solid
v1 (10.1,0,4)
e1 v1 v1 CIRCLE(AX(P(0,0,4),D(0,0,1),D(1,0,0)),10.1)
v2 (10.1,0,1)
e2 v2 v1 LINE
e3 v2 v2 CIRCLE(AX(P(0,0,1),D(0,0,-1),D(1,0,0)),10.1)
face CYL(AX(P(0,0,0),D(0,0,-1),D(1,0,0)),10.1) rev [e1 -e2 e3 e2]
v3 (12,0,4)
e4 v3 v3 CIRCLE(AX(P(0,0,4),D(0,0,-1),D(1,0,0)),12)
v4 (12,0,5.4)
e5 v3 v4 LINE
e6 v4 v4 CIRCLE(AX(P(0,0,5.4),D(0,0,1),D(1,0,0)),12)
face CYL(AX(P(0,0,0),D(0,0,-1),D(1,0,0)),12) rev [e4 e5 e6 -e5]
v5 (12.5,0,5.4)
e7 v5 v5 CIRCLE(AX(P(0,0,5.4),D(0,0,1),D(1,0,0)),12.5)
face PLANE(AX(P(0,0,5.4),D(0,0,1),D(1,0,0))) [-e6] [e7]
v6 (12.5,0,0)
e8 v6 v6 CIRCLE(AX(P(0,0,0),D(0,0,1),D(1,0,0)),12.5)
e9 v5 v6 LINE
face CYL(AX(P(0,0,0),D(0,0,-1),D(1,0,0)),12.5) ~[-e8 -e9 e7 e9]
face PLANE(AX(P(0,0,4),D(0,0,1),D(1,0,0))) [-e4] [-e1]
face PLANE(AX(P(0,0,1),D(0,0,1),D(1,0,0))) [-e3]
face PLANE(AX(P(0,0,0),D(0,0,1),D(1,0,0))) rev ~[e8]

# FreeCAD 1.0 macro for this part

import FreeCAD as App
import Part
import Sketcher

V = App.Vector

doc = App.newDocument("Part")
body = doc.addObject("PartDesign::Body", "Body")

sketch1 = body.newObject("Sketcher::SketchObject", "Sketch")
sketch1.AttachmentSupport = (doc.getObject("XY_Plane"), [""])
sketch1.MapMode = "FlatFace"
sketch1.addGeometry([
    Part.Circle(V(0, 0, 0), V(0, 0, 1), 12),
    Part.Circle(V(0, 0, 0), V(0, 0, 1), 12),
], False)
sketch1.addConstraint([
    Sketcher.Constraint("Coincident", 0, 3, -1, 1),
    Sketcher.Constraint("Coincident", 1, 3, -1, 1),
    Sketcher.Constraint("Diameter", 0, 25.0),
    Sketcher.Constraint("Diameter", 1, 24.0),
])
pad1 = body.newObject("PartDesign::Pad", "Pad")
pad1.Profile = sketch1
pad1.Length = 5.4

sketch2 = body.newObject("Sketcher::SketchObject", "Sketch001")
sketch2.AttachmentSupport = (doc.getObject("XY_Plane"), [""])
sketch2.MapMode = "FlatFace"
sketch2.addGeometry(Part.Circle(V(0, 0, 0), V(0, 0, 1), 12), False)
sketch2.addConstraint([
    Sketcher.Constraint("Coincident", 0, 3, -1, 1),
    Sketcher.Constraint("Diameter", 0, 25.0),
])
pad2 = body.newObject("PartDesign::Pad", "Pad001")
pad2.Profile = sketch2
pad2.Length = 1

sketch3 = body.newObject("Sketcher::SketchObject", "Sketch002")
sketch3.AttachmentSupport = (doc.getObject("XY_Plane"), [""])
sketch3.MapMode = "FlatFace"
sketch3.addGeometry([
    Part.Circle(V(0, 0, 0), V(0, 0, 1), 12),
    Part.Circle(V(0, 0, 0), V(0, 0, 1), 10),
], False)
sketch3.addConstraint([
    Sketcher.Constraint("Coincident", 0, 3, -1, 1),
    Sketcher.Constraint("Coincident", 1, 3, -1, 1),
    Sketcher.Constraint("Diameter", 0, 25.0),
    Sketcher.Constraint("Diameter", 1, 20.2),
])
pad3 = body.newObject("PartDesign::Pad", "Pad002")
pad3.Profile = sketch3
pad3.Length = 4

doc.recompute()
